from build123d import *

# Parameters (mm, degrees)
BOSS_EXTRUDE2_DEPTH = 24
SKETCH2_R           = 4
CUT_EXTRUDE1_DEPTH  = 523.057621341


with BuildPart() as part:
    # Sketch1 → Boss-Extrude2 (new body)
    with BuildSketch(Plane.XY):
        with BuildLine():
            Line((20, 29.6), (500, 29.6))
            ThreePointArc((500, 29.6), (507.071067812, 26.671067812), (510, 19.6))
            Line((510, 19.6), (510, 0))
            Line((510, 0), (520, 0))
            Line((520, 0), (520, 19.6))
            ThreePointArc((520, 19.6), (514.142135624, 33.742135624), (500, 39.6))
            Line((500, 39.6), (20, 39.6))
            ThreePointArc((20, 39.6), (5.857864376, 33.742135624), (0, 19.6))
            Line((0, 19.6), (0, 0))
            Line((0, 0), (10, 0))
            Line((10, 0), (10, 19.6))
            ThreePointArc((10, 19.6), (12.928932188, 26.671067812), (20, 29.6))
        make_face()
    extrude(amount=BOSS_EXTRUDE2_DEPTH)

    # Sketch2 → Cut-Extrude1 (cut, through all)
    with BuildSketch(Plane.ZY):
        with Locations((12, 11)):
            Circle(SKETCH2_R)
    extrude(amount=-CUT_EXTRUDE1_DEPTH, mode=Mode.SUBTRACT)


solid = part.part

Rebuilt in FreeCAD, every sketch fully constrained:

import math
import FreeCAD as App
import Part
import Sketcher
from FreeCAD import Vector

doc = App.newDocument("Part")
body = doc.addObject("PartDesign::Body", "Body")

# Sketch on XY plane
sketch1 = doc.addObject("Sketcher::SketchObject", "Sketch")
body.addObject(sketch1)
sketch1.AttachmentSupport = (doc.XY_Plane, [""])
sketch1.MapMode = "FlatFace"
sketch1.addGeometry(Part.LineSegment(Vector(20, 30, 0), Vector(500, 30, 0)), False)
sketch1.addGeometry(Part.ArcOfCircle(Part.Circle(Vector(500, 20, 0), Vector(0, 0, 1), 10), math.radians(0), math.radians(90)), False)
sketch1.addGeometry(Part.LineSegment(Vector(510, 20, 0), Vector(510, 0, 0)), False)
sketch1.addGeometry(Part.LineSegment(Vector(510, 0, 0), Vector(520, 0, 0)), False)
sketch1.addGeometry(Part.LineSegment(Vector(520, 0, 0), Vector(520, 20, 0)), False)
sketch1.addGeometry(Part.ArcOfCircle(Part.Circle(Vector(500, 20, 0), Vector(0, 0, 1), 20), math.radians(0), math.radians(90)), False)
sketch1.addGeometry(Part.LineSegment(Vector(500, 40, 0), Vector(20, 40, 0)), False)
sketch1.addGeometry(Part.ArcOfCircle(Part.Circle(Vector(20, 20, 0), Vector(0, 0, 1), 20), math.radians(90), math.radians(180)), False)
sketch1.addGeometry(Part.LineSegment(Vector(0, 20, 0), Vector(0, 0, 0)), False)
sketch1.addGeometry(Part.LineSegment(Vector(0, 0, 0), Vector(10, 0, 0)), False)
sketch1.addGeometry(Part.LineSegment(Vector(10, 0, 0), Vector(10, 20, 0)), False)
sketch1.addGeometry(Part.ArcOfCircle(Part.Circle(Vector(20, 20, 0), Vector(0, 0, 1), 10), math.radians(90), math.radians(180)), False)
sketch1.addConstraint(Sketcher.Constraint("Tangent", 0, 2, 1, 2))
sketch1.addConstraint(Sketcher.Constraint("Tangent", 1, 1, 2, 1))
sketch1.addConstraint(Sketcher.Constraint("Coincident", 2, 2, 3, 1))
sketch1.addConstraint(Sketcher.Constraint("Coincident", 3, 2, 4, 1))
sketch1.addConstraint(Sketcher.Constraint("Tangent", 4, 2, 5, 1))
sketch1.addConstraint(Sketcher.Constraint("Tangent", 5, 2, 6, 1))
sketch1.addConstraint(Sketcher.Constraint("Tangent", 6, 2, 7, 1))
sketch1.addConstraint(Sketcher.Constraint("Tangent", 7, 2, 8, 1))
sketch1.addConstraint(Sketcher.Constraint("Coincident", 8, 2, 9, 1))
sketch1.addConstraint(Sketcher.Constraint("Coincident", 9, 2, 10, 1))
sketch1.addConstraint(Sketcher.Constraint("Tangent", 10, 2, 11, 2))
sketch1.addConstraint(Sketcher.Constraint("Tangent", 11, 1, 0, 1))
sketch1.addConstraint(Sketcher.Constraint("Horizontal", 0))
sketch1.addConstraint(Sketcher.Constraint("Vertical", 2))
sketch1.addConstraint(Sketcher.Constraint("Horizontal", 3))
sketch1.addConstraint(Sketcher.Constraint("Vertical", 4))
sketch1.addConstraint(Sketcher.Constraint("Horizontal", 6))
sketch1.addConstraint(Sketcher.Constraint("Vertical", 8))
sketch1.addConstraint(Sketcher.Constraint("Horizontal", 9))
sketch1.addConstraint(Sketcher.Constraint("Vertical", 10))
sketch1.addConstraint(Sketcher.Constraint("Coincident", 8, 2, -1, 1))
sketch1.addConstraint(Sketcher.Constraint("Coincident", 5, 3, 1, 3))
sketch1.addConstraint(Sketcher.Constraint("Coincident", 11, 3, 7, 3))
sketch1.addConstraint(Sketcher.Constraint("Equal", 5, 7))
sketch1.addConstraint(Sketcher.Constraint("PointOnObject", 2, 2, -1))
sketch1.addConstraint(Sketcher.Constraint("Radius", 1, 10.0))
sketch1.addConstraint(Sketcher.Constraint("Radius", 5, 20.0))
sketch1.addConstraint(Sketcher.Constraint("DistanceX", 0, 1, 0, 2, 480.0))
sketch1.addConstraint(Sketcher.Constraint("DistanceY", 2, 2, 2, 1, 19.6))
pad1 = doc.addObject("PartDesign::Pad", "Pad")
body.addObject(pad1)
pad1.Profile = sketch1
pad1.Length = 24

# Sketch on YZ plane
sketch2 = doc.addObject("Sketcher::SketchObject", "Sketch001")
body.addObject(sketch2)
sketch2.AttachmentSupport = (doc.YZ_Plane, [""])
sketch2.MapMode = "FlatFace"
sketch2.addGeometry(Part.Circle(Vector(11, 12, 0), Vector(0, 0, 1), 4), False)
sketch2.addConstraint(Sketcher.Constraint("Diameter", 0, 8.0))
sketch2.addConstraint(Sketcher.Constraint("DistanceX", -1, 1, 0, 3, 11.0))
sketch2.addConstraint(Sketcher.Constraint("DistanceY", -1, 1, 0, 3, 12.0))
pocket1 = doc.addObject("PartDesign::Pocket", "Pocket")
body.addObject(pocket1)
pocket1.Profile = sketch2
pocket1.Type = "ThroughAll"
pocket1.Reversed = True

doc.recompute()
